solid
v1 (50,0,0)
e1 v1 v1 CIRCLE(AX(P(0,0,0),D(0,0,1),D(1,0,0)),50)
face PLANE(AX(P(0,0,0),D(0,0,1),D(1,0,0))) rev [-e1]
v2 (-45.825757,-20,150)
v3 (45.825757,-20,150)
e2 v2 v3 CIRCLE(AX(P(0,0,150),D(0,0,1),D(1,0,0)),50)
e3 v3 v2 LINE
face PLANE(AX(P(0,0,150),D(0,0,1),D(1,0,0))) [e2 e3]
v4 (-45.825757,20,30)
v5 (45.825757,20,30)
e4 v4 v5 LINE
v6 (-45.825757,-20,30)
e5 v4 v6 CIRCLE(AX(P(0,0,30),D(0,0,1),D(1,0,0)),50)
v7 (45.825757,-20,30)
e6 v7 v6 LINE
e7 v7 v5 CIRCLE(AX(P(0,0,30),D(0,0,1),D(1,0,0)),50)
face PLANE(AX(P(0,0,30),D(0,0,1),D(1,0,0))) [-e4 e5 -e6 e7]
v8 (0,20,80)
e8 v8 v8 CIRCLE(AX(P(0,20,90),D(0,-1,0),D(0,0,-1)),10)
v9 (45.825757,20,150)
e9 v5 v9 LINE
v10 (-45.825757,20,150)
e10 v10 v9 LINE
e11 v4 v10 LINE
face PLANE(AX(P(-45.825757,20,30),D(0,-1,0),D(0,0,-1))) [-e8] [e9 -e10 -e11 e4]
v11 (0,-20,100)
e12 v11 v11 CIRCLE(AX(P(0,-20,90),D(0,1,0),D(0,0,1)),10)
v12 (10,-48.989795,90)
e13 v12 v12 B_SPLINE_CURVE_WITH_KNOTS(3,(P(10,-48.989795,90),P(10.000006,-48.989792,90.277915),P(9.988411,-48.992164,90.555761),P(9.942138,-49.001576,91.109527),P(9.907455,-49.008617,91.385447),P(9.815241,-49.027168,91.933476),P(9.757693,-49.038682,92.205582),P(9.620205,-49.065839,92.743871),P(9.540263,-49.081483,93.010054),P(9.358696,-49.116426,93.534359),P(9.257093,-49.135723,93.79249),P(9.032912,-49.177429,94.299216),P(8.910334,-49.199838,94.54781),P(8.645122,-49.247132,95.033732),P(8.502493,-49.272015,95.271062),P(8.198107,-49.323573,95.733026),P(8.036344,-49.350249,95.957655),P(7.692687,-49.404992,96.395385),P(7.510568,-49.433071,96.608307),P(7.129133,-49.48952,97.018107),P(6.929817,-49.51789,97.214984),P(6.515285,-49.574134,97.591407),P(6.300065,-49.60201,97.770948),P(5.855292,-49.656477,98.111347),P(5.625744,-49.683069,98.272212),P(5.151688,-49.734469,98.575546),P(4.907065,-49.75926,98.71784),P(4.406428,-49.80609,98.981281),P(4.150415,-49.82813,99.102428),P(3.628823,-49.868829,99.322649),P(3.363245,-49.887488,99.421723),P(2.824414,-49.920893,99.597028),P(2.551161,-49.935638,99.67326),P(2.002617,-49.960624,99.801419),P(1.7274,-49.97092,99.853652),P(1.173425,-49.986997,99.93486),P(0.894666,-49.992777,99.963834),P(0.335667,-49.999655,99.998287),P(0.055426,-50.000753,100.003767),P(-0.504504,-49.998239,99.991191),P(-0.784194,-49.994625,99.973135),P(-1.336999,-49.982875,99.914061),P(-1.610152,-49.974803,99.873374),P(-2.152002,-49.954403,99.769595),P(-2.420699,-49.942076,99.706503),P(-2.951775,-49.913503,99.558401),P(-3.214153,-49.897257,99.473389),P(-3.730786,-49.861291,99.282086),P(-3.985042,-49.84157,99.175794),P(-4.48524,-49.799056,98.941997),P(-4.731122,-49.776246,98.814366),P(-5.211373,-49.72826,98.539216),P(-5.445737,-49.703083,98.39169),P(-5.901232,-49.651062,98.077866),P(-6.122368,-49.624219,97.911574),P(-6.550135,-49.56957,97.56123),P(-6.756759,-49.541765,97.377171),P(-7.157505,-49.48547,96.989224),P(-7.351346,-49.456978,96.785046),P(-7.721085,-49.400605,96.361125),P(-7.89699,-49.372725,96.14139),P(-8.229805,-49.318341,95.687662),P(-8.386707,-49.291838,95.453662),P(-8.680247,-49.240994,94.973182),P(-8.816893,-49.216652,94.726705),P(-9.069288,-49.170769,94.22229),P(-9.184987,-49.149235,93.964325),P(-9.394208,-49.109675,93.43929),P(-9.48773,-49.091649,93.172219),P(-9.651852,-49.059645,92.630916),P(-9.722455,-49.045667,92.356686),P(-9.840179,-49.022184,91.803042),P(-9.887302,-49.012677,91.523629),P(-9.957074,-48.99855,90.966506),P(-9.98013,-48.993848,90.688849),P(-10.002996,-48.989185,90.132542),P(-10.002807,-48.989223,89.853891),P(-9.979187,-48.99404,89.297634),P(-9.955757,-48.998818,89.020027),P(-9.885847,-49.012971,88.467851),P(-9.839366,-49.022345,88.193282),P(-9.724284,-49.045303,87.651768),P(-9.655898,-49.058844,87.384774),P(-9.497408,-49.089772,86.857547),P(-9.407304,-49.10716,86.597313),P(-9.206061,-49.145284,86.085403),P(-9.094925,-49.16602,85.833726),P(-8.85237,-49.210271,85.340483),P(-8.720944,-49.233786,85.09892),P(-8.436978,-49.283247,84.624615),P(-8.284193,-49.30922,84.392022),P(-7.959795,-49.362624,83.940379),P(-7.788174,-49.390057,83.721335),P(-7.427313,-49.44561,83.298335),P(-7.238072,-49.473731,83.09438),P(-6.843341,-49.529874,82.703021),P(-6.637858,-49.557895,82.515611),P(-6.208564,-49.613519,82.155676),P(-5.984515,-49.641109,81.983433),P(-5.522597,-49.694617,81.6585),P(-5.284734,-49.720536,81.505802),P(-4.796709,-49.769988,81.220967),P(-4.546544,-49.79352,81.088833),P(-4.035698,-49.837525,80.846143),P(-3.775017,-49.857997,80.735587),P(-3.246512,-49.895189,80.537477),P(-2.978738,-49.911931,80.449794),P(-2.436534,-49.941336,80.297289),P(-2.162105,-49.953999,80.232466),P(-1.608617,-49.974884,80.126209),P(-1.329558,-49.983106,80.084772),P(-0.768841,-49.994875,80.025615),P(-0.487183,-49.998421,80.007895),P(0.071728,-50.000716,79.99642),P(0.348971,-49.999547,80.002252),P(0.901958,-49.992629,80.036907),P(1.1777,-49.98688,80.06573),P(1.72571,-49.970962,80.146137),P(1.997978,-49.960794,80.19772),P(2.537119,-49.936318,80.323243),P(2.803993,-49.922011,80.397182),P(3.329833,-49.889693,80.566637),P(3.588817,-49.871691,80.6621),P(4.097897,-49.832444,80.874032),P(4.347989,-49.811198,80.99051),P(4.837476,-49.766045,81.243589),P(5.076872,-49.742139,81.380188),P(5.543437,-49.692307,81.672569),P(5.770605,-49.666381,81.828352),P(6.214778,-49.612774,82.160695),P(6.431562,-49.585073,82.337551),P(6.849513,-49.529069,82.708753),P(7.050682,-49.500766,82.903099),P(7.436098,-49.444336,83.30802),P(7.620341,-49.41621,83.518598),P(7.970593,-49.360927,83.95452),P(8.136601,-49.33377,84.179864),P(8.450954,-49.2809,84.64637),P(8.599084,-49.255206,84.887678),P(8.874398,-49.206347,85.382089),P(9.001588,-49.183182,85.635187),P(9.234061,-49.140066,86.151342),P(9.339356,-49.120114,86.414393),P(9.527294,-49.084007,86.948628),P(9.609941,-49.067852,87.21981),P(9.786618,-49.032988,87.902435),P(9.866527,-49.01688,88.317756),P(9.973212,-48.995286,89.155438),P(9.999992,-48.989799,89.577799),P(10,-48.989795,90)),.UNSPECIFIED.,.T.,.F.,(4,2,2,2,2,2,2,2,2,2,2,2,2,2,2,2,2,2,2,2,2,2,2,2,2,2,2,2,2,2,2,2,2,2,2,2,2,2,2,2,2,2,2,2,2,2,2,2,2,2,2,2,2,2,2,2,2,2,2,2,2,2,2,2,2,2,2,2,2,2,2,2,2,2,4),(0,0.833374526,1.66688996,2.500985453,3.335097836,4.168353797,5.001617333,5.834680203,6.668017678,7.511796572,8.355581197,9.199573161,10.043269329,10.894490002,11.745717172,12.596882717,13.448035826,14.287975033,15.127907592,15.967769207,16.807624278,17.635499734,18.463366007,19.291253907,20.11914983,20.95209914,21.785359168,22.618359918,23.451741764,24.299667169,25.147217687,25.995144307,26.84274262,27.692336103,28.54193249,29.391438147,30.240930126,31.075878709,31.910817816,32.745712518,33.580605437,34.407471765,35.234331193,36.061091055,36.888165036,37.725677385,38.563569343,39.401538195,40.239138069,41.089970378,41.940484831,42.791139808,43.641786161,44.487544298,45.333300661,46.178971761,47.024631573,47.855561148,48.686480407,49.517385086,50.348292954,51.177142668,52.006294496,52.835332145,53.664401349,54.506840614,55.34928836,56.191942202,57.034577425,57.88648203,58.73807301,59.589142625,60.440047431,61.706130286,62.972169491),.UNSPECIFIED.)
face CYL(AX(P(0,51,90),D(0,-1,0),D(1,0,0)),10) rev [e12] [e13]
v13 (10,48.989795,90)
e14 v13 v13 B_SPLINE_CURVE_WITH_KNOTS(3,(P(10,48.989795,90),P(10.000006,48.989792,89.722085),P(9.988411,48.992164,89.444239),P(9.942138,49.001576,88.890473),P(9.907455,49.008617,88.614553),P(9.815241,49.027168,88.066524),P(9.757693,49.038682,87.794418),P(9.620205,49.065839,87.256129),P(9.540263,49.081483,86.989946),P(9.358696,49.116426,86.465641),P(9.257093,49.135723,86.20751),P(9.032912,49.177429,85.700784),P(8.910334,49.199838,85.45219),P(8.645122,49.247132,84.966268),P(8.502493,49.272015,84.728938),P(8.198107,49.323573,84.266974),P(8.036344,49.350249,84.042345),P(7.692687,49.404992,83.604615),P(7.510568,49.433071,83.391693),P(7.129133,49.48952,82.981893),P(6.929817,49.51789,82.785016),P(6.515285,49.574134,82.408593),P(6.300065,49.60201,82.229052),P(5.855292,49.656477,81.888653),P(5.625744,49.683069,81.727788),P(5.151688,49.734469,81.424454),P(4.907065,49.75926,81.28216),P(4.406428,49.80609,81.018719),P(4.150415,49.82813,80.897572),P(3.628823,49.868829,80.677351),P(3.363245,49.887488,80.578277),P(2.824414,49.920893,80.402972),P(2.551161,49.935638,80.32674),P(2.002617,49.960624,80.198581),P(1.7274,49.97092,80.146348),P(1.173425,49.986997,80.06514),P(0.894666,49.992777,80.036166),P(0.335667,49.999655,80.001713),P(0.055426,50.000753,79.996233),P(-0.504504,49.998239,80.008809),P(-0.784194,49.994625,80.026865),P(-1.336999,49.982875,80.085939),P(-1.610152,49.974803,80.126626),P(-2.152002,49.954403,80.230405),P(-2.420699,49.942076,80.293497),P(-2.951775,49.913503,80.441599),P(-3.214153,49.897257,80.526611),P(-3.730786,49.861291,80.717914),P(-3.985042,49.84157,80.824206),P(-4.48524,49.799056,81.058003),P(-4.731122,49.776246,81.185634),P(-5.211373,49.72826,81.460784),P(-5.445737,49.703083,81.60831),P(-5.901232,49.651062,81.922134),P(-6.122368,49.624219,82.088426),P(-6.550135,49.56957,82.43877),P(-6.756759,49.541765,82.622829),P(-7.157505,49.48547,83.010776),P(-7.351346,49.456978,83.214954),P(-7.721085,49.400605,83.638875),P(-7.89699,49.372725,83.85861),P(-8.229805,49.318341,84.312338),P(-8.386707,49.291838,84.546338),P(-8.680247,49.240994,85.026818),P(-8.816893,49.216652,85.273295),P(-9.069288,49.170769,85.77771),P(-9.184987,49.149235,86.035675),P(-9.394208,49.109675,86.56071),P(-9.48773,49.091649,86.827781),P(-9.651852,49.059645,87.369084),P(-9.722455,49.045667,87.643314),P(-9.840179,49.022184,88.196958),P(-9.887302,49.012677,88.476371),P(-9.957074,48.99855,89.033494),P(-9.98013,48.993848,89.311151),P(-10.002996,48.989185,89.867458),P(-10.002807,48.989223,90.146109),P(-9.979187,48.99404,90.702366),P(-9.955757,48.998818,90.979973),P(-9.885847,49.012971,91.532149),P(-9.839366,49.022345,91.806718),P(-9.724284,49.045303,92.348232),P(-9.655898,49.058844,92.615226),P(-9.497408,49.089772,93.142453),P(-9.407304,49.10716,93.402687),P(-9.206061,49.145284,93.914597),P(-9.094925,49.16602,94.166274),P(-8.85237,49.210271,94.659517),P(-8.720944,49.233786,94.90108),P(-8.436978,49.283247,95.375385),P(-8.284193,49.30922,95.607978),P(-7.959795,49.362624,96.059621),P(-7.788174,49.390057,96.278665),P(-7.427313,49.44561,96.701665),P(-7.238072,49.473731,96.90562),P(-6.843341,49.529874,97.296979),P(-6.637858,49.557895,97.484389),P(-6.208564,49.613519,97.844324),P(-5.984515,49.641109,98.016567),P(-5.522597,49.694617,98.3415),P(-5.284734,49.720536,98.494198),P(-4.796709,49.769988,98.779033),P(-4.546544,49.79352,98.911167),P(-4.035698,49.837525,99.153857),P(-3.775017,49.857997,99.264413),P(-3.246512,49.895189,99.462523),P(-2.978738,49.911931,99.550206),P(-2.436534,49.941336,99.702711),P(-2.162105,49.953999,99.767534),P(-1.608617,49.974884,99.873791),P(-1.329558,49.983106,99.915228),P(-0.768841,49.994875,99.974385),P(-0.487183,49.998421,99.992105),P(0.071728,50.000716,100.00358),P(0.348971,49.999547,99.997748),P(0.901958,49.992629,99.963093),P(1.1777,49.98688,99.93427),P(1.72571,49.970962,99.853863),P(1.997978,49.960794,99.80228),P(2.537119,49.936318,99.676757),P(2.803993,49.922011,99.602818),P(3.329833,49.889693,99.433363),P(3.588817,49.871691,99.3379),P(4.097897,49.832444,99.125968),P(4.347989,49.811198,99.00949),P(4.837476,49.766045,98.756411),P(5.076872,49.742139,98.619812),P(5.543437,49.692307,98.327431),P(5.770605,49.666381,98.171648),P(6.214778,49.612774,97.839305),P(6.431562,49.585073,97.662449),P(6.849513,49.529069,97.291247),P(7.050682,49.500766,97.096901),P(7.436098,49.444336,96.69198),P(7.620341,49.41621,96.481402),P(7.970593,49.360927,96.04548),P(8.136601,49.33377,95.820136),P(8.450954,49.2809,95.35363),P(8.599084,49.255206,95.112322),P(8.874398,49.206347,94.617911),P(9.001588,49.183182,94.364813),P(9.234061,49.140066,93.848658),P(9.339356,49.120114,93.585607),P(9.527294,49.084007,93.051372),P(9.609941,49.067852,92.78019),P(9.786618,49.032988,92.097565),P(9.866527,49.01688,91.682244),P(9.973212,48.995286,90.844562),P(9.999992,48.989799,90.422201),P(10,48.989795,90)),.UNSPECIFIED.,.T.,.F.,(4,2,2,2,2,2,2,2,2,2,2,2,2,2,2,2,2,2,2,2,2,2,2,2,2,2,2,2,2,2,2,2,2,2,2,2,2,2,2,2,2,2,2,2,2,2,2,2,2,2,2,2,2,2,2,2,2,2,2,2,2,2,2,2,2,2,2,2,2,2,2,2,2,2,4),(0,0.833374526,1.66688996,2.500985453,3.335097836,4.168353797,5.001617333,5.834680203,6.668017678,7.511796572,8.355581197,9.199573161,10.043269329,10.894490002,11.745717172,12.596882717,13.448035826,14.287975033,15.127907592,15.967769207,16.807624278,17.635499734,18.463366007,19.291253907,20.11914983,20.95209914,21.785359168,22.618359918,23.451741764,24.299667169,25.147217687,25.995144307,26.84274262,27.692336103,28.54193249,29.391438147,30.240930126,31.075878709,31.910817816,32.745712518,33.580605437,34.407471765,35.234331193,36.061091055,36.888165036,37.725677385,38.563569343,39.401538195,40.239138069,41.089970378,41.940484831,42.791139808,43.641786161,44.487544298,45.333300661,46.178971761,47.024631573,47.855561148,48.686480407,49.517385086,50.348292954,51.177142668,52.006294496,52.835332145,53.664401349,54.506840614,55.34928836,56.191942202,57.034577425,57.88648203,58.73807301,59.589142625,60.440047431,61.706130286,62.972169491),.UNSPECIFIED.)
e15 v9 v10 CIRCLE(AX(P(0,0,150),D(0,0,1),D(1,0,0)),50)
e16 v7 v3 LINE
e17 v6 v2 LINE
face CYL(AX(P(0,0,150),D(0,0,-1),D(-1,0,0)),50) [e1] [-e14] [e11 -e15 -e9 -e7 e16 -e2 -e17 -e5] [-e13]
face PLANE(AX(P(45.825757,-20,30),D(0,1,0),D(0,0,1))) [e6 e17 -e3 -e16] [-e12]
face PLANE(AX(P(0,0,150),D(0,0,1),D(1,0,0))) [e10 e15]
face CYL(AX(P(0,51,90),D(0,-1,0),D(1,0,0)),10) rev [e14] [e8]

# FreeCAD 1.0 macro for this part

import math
import FreeCAD as App
import Part
import Sketcher
Q = App.Units.Quantity


def add_polygon(sketch, points):
    """Adds a closed chain of lines whose ends are joined by coincident constraints."""
    first, n = sketch.GeometryCount, len(points)
    for a, b in zip(points, points[1:] + points[:1]):
        sketch.addGeometry(Part.LineSegment(App.Vector(*a, 0), App.Vector(*b, 0)), False)
    for i in range(n):
        sketch.addConstraint(Sketcher.Constraint("Coincident", first + i, 2, first + (i + 1) % n, 1))

doc = App.newDocument("Part")
body = doc.addObject("PartDesign::Body", "Body")

# Sketch on XY plane
sketch1 = body.newObject("Sketcher::SketchObject", "Sketch")
sketch1.AttachmentSupport = (doc.getObject("XY_Plane"), [""])
sketch1.MapMode = "FlatFace"
sketch1.addGeometry(Part.Circle(App.Vector(0, 0, 0), App.Vector(0, 0, 1), 50), False)
sketch1.addConstraint([
    Sketcher.Constraint("Coincident", 0, 3, -1, 1),
    Sketcher.Constraint("Diameter", 0, Q("100 mm")),
])
pad1 = body.newObject("PartDesign::Pad", "Pad")
pad1.Profile = sketch1
pad1.Length = 150

# Sketch on XY plane
sketch2 = body.newObject("Sketcher::SketchObject", "Sketch001")
sketch2.AttachmentSupport = (doc.getObject("XY_Plane"), [""])
sketch2.MapMode = "FlatFace"
sketch2.AttachmentOffset = App.Placement(App.Vector(0, 0, 150), App.Rotation())
add_polygon(sketch2, [(-72, 72), (-72, -72), (72, -72), (72, 72)])  # lines 0-3
sketch2.addGeometry(Part.LineSegment(App.Vector(-46, -20, 0), App.Vector(46, -20, 0)), False)  # 4
sketch2.addGeometry(Part.ArcOfCircle(Part.Circle(App.Vector(0, 0, 0), App.Vector(0, 0, 1), 50), math.radians(-156), math.radians(-24)), False)  # 5
sketch2.addGeometry(Part.LineSegment(App.Vector(46, 20, 0), App.Vector(-46, 20, 0)), False)  # 6
sketch2.addGeometry(Part.ArcOfCircle(Part.Circle(App.Vector(0, 0, 0), App.Vector(0, 0, 1), 50), math.radians(24), math.radians(156)), False)  # 7
sketch2.addConstraint([
    Sketcher.Constraint("Coincident", 4, 1, 5, 1),
    Sketcher.Constraint("Coincident", 5, 2, 4, 2),
    Sketcher.Constraint("Coincident", 6, 1, 7, 1),
    Sketcher.Constraint("Coincident", 7, 2, 6, 2),
    Sketcher.Constraint("Vertical", 0),
    Sketcher.Constraint("Horizontal", 1),
    Sketcher.Constraint("Vertical", 2),
    Sketcher.Constraint("Horizontal", 3),
    Sketcher.Constraint("Horizontal", 4),
    Sketcher.Constraint("Horizontal", 6),
    Sketcher.Constraint("Coincident", 5, 3, -1, 1),
    Sketcher.Constraint("Coincident", 7, 3, -1, 1),
    Sketcher.Constraint("Equal", 5, 7),
    Sketcher.Constraint("Symmetric", 0, 2, 2, 2, -1, 1),
    Sketcher.Constraint("Vertical", 5, 2, 6, 1),
    Sketcher.Constraint("Equal", 3, 0),
    Sketcher.Constraint("Radius", 5, Q("50 mm")),
    Sketcher.Constraint("DistanceY", 4, 1, -1, 1, Q("20 mm")),
    Sketcher.Constraint("DistanceX", 1, 1, 1, 2, Q("143.232 mm")),
])
pocket1 = body.newObject("PartDesign::Pocket", "Pocket")
pocket1.Profile = sketch2
pocket1.Length = 120

# Sketch on XZ plane
sketch3 = body.newObject("Sketcher::SketchObject", "Sketch002")
sketch3.AttachmentSupport = (doc.getObject("XZ_Plane"), [""])
sketch3.MapMode = "FlatFace"
sketch3.AttachmentOffset = App.Placement(App.Vector(0, 0, -50), App.Rotation())
sketch3.addGeometry(Part.Circle(App.Vector(0, 90, 0), App.Vector(0, 0, 1), 10), False)
sketch3.addConstraint([
    Sketcher.Constraint("PointOnObject", 0, 3, -2),
    Sketcher.Constraint("Diameter", 0, Q("20 mm")),
    Sketcher.Constraint("DistanceY", -1, 1, 0, 3, Q("90 mm")),
])

# Sketch on XY plane
sketch4 = body.newObject("Sketcher::SketchObject", "Sketch003")
sketch4.AttachmentSupport = (doc.getObject("XY_Plane"), [""])
sketch4.MapMode = "FlatFace"
sketch4.AttachmentOffset = App.Placement(App.Vector(0, 0, 90), App.Rotation())
sketch4.addGeometry(Part.LineSegment(App.Vector(0, 50, 0), App.Vector(0, -50, 0)), False)
sketch4.addConstraint([
    Sketcher.Constraint("Vertical", 0),
    Sketcher.Constraint("Symmetric", 0, 1, 0, 2, -1, 1),
    Sketcher.Constraint("DistanceY", 0, 2, 0, 1, Q("100 mm")),
])
doc.recompute()

subtractivepipe = body.newObject("PartDesign::SubtractivePipe", "SubtractivePipe")
subtractivepipe.Profile = sketch3
subtractivepipe.Spine = (sketch4, ["Edge1"])

doc.recompute()
